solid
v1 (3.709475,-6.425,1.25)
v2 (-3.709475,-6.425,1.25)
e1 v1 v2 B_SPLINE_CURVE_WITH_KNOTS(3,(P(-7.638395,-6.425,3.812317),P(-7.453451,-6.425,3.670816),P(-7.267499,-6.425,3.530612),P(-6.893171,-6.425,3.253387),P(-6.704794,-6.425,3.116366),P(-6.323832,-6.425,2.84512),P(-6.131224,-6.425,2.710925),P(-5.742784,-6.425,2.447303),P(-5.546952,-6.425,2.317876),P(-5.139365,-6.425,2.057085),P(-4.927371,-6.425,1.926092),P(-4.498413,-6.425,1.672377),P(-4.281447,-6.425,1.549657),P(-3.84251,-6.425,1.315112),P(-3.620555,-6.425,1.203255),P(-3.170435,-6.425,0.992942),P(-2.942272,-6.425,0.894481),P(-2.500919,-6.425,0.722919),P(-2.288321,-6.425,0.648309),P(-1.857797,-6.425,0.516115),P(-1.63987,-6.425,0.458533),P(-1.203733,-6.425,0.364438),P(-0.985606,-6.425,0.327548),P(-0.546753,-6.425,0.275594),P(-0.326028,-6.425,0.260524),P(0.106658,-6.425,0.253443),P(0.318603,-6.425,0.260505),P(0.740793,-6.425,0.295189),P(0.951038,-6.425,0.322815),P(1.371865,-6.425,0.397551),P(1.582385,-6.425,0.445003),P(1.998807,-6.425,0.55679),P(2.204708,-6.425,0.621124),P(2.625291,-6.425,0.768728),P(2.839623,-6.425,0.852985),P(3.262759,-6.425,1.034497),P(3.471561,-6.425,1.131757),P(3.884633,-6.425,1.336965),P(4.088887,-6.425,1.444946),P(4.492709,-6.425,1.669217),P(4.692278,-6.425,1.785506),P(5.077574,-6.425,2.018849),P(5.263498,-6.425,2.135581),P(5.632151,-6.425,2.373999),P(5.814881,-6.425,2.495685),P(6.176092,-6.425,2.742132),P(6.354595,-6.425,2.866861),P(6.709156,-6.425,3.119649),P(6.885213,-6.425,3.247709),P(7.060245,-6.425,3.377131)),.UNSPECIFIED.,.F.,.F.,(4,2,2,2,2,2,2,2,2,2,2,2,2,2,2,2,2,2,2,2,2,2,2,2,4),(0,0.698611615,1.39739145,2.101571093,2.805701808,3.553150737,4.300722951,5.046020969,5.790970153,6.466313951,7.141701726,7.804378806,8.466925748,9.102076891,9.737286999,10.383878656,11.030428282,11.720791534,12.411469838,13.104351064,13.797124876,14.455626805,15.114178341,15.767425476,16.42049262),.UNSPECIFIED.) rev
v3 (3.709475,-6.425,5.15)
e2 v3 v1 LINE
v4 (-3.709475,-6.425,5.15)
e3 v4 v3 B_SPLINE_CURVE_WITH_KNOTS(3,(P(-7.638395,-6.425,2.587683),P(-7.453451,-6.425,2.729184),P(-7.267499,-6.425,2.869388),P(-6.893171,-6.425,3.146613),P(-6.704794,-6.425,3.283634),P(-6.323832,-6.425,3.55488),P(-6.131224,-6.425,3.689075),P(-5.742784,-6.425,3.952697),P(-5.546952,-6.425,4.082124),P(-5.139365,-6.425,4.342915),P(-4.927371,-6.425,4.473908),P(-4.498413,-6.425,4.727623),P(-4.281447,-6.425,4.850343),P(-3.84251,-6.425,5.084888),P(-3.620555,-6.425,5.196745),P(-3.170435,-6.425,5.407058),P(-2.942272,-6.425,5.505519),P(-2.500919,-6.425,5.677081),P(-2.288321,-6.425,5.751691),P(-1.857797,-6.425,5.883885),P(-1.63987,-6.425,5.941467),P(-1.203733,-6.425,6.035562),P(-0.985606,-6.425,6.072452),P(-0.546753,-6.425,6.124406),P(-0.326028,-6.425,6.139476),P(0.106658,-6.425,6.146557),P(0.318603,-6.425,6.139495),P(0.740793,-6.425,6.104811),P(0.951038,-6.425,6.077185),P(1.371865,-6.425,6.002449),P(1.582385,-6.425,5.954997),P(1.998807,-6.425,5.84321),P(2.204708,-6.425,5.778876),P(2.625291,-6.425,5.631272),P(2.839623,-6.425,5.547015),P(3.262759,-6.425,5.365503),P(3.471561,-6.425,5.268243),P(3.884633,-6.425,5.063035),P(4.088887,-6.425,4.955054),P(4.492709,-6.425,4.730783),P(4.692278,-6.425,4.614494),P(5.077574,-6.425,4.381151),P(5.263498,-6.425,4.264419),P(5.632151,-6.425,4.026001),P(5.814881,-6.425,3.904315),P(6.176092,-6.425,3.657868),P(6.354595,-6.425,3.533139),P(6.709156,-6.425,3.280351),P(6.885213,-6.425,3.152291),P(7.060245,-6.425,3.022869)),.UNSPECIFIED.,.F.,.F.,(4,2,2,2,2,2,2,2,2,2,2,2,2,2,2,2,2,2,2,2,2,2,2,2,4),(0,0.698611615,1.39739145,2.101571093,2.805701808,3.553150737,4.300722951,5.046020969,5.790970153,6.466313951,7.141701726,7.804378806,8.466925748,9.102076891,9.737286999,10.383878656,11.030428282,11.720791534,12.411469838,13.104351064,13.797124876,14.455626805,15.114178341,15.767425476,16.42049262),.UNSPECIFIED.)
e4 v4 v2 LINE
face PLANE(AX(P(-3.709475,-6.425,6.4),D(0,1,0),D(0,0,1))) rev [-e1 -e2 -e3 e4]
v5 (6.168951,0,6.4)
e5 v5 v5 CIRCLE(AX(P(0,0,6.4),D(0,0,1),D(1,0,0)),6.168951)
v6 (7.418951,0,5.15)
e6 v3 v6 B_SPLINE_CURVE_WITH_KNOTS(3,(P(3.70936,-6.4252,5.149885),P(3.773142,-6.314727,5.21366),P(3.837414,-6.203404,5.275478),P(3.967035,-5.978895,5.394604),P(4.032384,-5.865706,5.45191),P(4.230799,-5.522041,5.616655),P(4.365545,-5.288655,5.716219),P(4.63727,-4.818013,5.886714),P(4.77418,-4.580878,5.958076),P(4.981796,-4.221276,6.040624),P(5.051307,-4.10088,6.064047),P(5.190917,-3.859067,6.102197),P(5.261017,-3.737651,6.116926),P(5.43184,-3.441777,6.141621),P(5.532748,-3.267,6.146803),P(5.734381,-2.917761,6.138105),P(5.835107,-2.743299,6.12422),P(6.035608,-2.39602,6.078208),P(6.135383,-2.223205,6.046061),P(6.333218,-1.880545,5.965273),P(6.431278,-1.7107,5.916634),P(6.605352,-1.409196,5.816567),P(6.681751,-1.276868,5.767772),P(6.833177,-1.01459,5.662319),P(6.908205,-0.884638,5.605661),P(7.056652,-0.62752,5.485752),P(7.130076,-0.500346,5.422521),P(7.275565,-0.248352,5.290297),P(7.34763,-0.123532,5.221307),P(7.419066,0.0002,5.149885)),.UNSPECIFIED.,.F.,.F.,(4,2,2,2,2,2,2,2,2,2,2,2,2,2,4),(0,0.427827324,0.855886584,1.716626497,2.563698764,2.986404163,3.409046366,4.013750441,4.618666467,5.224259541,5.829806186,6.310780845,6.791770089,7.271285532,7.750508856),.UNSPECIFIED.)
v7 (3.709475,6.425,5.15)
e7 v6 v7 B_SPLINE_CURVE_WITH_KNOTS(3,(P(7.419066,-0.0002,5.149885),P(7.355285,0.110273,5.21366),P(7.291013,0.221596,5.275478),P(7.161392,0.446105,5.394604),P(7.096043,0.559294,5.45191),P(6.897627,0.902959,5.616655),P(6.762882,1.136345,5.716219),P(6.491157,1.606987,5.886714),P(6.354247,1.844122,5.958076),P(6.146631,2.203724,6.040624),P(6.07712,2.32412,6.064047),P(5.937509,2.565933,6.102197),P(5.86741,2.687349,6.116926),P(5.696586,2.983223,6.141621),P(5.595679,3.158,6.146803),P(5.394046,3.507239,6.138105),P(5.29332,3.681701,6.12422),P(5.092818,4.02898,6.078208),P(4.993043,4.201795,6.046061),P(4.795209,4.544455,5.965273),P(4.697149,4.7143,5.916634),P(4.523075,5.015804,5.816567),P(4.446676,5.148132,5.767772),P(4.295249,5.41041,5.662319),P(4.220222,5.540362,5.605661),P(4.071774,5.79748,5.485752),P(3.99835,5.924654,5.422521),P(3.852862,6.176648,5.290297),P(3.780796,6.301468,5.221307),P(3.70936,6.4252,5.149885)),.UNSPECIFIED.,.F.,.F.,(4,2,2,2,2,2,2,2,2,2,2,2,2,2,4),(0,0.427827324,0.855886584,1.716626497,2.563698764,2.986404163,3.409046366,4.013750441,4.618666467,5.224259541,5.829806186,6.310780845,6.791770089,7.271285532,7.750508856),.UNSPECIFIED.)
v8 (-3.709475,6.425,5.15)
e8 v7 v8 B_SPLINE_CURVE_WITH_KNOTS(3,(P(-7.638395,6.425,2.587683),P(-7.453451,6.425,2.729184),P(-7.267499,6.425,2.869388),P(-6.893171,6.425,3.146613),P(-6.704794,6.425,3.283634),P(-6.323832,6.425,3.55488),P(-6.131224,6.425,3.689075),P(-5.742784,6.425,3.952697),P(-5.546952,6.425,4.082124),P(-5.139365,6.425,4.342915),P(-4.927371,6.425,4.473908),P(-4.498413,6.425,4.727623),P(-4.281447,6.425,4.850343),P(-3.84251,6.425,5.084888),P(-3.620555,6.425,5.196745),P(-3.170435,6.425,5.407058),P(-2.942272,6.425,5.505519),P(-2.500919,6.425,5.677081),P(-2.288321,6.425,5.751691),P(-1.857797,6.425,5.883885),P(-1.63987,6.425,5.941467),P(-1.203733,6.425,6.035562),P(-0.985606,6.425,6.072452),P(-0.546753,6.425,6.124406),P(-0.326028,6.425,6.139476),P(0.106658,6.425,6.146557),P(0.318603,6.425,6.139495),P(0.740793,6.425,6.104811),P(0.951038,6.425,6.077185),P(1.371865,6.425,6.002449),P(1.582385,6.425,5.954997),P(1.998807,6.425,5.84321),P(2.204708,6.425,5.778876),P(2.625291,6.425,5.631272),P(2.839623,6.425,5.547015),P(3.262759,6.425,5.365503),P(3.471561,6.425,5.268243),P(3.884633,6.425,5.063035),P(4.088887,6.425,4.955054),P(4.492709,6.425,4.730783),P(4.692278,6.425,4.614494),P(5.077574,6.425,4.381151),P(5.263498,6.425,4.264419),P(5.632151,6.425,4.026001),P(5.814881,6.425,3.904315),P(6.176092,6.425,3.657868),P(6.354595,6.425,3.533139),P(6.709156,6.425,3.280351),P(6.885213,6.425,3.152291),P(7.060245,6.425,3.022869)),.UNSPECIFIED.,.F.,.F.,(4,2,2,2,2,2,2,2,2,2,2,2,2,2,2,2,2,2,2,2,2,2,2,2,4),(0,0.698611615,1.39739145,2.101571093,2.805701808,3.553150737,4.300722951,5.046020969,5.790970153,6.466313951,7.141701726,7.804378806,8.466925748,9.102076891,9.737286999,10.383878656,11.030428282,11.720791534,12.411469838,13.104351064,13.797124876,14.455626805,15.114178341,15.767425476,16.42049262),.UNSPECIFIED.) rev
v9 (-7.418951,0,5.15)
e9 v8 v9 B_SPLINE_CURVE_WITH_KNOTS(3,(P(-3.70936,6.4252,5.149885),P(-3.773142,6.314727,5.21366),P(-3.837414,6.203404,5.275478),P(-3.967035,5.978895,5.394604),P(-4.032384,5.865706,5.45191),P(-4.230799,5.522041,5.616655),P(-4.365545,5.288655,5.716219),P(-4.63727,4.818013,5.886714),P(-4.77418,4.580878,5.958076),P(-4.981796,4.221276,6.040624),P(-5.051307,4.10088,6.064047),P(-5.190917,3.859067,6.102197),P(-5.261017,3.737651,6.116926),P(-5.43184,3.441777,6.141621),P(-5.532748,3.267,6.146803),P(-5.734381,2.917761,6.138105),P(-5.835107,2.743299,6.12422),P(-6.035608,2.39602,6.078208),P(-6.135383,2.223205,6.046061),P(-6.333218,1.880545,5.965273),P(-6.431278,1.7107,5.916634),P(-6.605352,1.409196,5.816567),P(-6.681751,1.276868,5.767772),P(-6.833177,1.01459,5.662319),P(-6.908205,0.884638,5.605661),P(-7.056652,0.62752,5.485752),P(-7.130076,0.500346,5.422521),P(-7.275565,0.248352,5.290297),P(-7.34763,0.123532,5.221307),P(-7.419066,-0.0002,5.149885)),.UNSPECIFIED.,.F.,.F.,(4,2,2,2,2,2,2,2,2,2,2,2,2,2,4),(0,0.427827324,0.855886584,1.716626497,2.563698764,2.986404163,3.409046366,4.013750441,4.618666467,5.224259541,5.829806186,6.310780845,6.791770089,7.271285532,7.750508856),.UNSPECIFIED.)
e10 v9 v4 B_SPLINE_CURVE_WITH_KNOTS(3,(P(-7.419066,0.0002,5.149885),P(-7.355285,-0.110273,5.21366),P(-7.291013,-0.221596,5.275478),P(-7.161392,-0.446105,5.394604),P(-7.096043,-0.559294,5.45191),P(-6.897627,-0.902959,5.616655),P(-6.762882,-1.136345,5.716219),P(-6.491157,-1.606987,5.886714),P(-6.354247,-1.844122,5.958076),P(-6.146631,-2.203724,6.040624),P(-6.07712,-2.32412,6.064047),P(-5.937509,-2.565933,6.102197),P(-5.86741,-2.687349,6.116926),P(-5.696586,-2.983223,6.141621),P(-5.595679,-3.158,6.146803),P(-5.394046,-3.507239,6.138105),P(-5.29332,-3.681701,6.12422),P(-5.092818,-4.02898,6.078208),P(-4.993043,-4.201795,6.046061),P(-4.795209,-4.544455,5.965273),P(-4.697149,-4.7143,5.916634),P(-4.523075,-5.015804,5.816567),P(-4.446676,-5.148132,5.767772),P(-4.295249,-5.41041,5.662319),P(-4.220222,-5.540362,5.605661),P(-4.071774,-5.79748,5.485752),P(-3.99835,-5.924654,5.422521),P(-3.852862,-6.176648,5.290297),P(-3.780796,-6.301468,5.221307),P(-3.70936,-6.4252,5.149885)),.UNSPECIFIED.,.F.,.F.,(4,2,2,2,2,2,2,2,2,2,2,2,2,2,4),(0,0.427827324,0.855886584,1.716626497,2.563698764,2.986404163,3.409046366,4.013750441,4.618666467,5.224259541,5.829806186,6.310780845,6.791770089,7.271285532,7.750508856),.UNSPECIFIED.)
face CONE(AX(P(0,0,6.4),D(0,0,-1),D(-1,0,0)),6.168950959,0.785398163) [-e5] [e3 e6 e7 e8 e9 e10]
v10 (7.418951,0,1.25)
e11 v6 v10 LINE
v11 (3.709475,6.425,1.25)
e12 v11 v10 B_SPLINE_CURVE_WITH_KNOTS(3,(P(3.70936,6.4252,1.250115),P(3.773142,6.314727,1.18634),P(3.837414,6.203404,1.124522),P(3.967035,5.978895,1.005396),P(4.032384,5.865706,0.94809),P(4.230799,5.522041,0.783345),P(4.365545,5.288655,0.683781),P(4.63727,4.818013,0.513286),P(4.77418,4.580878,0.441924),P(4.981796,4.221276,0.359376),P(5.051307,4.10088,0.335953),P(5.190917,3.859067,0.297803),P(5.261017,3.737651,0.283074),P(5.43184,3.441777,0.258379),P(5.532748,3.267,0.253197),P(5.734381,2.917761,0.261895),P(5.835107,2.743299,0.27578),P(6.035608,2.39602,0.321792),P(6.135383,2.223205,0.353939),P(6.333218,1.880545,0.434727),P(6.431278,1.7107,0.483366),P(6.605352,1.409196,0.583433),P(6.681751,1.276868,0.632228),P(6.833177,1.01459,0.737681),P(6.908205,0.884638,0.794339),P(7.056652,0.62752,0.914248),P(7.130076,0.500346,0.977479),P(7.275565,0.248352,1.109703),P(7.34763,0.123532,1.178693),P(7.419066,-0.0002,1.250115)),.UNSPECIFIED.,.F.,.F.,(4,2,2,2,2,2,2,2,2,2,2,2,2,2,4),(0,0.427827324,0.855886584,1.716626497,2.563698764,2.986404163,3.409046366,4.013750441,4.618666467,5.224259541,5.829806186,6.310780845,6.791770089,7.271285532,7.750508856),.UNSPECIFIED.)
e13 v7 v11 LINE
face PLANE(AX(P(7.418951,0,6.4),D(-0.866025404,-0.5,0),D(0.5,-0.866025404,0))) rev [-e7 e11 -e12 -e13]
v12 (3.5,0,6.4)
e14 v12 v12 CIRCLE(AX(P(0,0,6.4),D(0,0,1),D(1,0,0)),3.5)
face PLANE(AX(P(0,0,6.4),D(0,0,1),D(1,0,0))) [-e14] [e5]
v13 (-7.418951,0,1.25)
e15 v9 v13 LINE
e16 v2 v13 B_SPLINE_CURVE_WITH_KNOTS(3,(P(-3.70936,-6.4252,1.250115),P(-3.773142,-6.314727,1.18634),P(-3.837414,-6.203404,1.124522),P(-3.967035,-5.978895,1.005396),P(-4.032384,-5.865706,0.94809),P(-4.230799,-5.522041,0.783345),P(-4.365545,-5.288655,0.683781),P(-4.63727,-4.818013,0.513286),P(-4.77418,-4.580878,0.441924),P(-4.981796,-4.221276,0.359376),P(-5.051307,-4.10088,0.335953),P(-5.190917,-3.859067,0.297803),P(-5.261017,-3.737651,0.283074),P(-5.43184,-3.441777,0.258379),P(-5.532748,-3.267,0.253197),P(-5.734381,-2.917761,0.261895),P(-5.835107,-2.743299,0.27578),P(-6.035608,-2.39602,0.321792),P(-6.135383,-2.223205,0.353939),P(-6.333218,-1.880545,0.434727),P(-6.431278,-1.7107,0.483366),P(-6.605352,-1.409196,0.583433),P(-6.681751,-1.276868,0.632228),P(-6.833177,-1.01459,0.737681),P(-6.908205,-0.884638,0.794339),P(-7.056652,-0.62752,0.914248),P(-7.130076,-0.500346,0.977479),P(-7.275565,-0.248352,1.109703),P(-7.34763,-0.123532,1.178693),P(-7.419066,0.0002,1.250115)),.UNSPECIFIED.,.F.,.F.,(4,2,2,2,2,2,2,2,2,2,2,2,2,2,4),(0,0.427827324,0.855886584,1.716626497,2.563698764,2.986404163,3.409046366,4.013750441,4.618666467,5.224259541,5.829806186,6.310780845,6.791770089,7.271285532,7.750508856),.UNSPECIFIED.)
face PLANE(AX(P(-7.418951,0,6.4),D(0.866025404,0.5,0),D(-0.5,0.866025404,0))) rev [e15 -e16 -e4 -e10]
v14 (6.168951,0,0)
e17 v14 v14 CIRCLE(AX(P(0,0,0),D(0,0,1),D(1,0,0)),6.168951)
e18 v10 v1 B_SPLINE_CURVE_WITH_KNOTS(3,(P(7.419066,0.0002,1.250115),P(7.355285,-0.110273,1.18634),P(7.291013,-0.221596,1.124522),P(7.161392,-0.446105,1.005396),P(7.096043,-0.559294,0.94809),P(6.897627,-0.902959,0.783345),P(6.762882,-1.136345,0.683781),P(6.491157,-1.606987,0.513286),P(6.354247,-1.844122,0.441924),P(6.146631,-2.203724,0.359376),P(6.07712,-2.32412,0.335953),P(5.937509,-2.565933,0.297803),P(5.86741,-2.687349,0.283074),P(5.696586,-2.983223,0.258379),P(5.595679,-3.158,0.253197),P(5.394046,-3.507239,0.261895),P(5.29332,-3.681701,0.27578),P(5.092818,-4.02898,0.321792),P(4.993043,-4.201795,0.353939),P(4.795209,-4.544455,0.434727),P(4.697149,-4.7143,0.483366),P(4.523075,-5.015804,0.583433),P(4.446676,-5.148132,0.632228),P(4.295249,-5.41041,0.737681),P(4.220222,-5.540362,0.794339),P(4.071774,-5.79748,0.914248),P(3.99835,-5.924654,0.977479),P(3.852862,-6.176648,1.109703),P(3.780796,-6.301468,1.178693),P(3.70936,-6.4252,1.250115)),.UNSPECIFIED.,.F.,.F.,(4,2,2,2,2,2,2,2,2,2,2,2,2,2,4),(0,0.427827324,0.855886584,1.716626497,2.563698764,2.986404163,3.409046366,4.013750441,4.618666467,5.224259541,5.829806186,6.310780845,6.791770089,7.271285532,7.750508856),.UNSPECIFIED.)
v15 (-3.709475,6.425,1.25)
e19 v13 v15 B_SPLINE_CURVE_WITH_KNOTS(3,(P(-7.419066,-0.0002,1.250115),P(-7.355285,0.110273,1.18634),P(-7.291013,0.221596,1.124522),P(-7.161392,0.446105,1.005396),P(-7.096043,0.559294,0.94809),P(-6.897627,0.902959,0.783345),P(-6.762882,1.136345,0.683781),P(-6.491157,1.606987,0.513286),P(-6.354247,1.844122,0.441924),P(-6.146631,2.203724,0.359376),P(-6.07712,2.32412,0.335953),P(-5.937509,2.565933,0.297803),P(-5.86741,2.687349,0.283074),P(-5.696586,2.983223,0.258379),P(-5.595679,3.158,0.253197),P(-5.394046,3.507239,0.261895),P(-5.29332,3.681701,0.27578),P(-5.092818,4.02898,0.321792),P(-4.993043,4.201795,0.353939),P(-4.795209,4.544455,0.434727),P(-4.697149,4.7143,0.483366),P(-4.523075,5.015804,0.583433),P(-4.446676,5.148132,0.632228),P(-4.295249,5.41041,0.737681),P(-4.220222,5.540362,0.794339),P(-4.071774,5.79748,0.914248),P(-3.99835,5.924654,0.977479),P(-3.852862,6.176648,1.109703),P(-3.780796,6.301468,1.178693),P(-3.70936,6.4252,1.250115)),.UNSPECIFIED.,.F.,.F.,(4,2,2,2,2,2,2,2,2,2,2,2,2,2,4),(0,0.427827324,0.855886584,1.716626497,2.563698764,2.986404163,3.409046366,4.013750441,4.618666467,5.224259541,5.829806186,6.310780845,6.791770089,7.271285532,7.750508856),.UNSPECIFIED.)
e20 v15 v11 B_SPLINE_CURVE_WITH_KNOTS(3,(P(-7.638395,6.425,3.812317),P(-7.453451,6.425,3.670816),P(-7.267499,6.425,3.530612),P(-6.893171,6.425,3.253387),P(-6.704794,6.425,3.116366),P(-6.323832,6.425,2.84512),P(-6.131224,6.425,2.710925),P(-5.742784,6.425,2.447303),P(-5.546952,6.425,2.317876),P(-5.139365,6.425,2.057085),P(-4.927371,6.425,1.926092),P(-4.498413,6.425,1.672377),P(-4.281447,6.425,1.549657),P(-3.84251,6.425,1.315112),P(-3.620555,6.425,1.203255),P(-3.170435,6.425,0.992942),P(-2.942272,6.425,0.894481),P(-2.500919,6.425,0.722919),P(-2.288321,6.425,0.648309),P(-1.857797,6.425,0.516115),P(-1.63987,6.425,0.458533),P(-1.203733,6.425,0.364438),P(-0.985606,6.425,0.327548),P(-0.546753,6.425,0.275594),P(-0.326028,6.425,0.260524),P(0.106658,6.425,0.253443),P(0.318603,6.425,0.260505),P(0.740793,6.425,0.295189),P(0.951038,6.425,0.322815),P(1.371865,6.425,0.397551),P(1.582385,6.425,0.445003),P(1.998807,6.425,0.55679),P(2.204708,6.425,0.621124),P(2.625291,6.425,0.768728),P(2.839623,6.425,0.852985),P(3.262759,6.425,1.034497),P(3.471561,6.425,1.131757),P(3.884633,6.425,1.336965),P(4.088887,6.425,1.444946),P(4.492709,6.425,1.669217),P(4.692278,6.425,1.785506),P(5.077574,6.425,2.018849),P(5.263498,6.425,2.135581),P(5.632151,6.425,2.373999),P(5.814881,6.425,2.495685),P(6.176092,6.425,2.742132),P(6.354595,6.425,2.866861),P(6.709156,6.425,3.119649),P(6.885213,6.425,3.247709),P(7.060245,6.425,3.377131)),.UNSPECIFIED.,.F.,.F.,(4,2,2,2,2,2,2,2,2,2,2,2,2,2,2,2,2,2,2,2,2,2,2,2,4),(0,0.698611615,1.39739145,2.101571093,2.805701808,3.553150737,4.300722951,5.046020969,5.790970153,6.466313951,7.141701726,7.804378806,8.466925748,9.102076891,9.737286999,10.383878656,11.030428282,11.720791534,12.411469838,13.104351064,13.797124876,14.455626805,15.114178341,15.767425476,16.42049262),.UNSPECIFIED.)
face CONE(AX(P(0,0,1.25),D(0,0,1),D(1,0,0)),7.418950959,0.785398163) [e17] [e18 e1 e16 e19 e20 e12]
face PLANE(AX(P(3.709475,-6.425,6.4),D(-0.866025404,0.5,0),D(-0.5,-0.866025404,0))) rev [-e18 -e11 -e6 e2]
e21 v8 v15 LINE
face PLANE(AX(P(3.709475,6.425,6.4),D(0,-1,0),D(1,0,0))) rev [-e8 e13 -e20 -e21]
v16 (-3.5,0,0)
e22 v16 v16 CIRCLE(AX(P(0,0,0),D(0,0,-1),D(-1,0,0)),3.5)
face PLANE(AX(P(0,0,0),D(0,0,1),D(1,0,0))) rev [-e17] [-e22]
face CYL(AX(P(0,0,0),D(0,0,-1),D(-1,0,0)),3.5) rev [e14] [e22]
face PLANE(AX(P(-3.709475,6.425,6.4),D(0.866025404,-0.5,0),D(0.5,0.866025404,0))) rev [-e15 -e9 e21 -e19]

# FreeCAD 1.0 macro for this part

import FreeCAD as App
import Part
import Sketcher

V = App.Vector
Q = App.Units.Quantity

doc = App.newDocument("Part")
body = doc.addObject("PartDesign::Body", "Body")

sketch1 = body.newObject("Sketcher::SketchObject", "Sketch")
sketch1.AttachmentSupport = (doc.getObject("XY_Plane"), [""])
sketch1.MapMode = "FlatFace"
sketch1.addGeometry([
    Part.LineSegment(V(7, 0, 0), V(4, 6, 0)),
    Part.LineSegment(V(4, 6, 0), V(-4, 6, 0)),
    Part.LineSegment(V(-4, 6, 0), V(-7, 0, 0)),
    Part.LineSegment(V(-7, 0, 0), V(-4, -6, 0)),
    Part.LineSegment(V(-4, -6, 0), V(4, -6, 0)),
    Part.LineSegment(V(4, -6, 0), V(7, 0, 0)),
], False)
sketch1.addConstraint([
    Sketcher.Constraint("Coincident", 0, 2, 1, 1),
    Sketcher.Constraint("Coincident", 1, 2, 2, 1),
    Sketcher.Constraint("Coincident", 2, 2, 3, 1),
    Sketcher.Constraint("Coincident", 3, 2, 4, 1),
    Sketcher.Constraint("Coincident", 4, 2, 5, 1),
    Sketcher.Constraint("Coincident", 5, 2, 0, 1),
    Sketcher.Constraint("Horizontal", 1),
    Sketcher.Constraint("Horizontal", 4),
    Sketcher.Constraint("Symmetric", 0, 2, 3, 2, -1, 1),
    Sketcher.Constraint("Symmetric", 2, 2, 5, 2, -1, 1),
    Sketcher.Constraint("PointOnObject", 2, 2, -1),
    Sketcher.Constraint("Parallel", 2, 5),
    Sketcher.Constraint("Vertical", 1, 2, 3, 2),
    Sketcher.Constraint("Angle", 0, Q("120 deg")),
    Sketcher.Constraint("DistanceY", 3, 2, 1, 2, Q("12.85 mm")),
    Sketcher.Constraint("DistanceX", 1, 2, 1, 1, Q("7.418951 mm")),
])
pad1 = body.newObject("PartDesign::Pad", "Pad")
pad1.Profile = sketch1
pad1.Length = 6.4

sketch2 = body.newObject("Sketcher::SketchObject", "Sketch001")
sketch2.AttachmentSupport = (doc.getObject("XY_Plane"), [""])
sketch2.MapMode = "FlatFace"
sketch2.addGeometry(Part.Circle(V(0, 0, 0), V(0, 0, 1), 3.5), False)
sketch2.addConstraint([
    Sketcher.Constraint("Coincident", 0, 3, -1, 1),
    Sketcher.Constraint("Diameter", 0, Q("7 mm")),
])
doc.recompute()
hole = body.newObject("PartDesign::Hole", "Hole")
hole.Profile = sketch2
hole.ThreadType = "None"
hole.Diameter = 7
hole.DepthType = "Dimension"
hole.Depth = 16
hole.DrillPoint = "Flat"
hole.Reversed = True

sketch3 = body.newObject("Sketcher::SketchObject", "Sketch002")
sketch3.AttachmentSupport = (doc.getObject("XZ_Plane"), [""])
sketch3.MapMode = "FlatFace"
sketch3.addGeometry([
    Part.LineSegment(V(7.4, 0, 0), V(7.4, 1.2, 0)),
    Part.LineSegment(V(7.4, 1.2, 0), V(6.2, 0, 0)),
    Part.LineSegment(V(6.2, 0, 0), V(7.4, 0, 0)),
    Part.LineSegment(V(7.4, 5.2, 0), V(7.4, 6.4, 0)),
    Part.LineSegment(V(7.4, 6.4, 0), V(6.2, 6.4, 0)),
    Part.LineSegment(V(6.2, 6.4, 0), V(7.4, 5.2, 0)),
], False)
sketch3.addConstraint([
    Sketcher.Constraint("Coincident", 0, 2, 1, 1),
    Sketcher.Constraint("Coincident", 1, 2, 2, 1),
    Sketcher.Constraint("Coincident", 2, 2, 0, 1),
    Sketcher.Constraint("Coincident", 3, 2, 4, 1),
    Sketcher.Constraint("Coincident", 4, 2, 5, 1),
    Sketcher.Constraint("Coincident", 5, 2, 3, 1),
    Sketcher.Constraint("Vertical", 0),
    Sketcher.Constraint("Horizontal", 2),
    Sketcher.Constraint("Vertical", 3),
    Sketcher.Constraint("Horizontal", 4),
    Sketcher.Constraint("PointOnObject", 1, 2, -1),
    Sketcher.Constraint("Perpendicular", 1, 5),
    Sketcher.Constraint("Vertical", 2, 2, 3, 2),
    Sketcher.Constraint("Vertical", 1, 2, 4, 2),
    Sketcher.Constraint("Equal", 4, 0),
    Sketcher.Constraint("DistanceX", 2, 1, 2, 2, Q("1.25 mm")),
    Sketcher.Constraint("DistanceY", -1, 1, 3, 2, Q("6.4 mm")),
    Sketcher.Constraint("DistanceX", -1, 1, 0, 2, Q("7.418951 mm")),
])
groove = body.newObject("PartDesign::Groove", "Groove")
groove.Profile = sketch3
groove.ReferenceAxis = (sketch3, ["V_Axis"])
groove.Angle = 360

doc.recompute()
